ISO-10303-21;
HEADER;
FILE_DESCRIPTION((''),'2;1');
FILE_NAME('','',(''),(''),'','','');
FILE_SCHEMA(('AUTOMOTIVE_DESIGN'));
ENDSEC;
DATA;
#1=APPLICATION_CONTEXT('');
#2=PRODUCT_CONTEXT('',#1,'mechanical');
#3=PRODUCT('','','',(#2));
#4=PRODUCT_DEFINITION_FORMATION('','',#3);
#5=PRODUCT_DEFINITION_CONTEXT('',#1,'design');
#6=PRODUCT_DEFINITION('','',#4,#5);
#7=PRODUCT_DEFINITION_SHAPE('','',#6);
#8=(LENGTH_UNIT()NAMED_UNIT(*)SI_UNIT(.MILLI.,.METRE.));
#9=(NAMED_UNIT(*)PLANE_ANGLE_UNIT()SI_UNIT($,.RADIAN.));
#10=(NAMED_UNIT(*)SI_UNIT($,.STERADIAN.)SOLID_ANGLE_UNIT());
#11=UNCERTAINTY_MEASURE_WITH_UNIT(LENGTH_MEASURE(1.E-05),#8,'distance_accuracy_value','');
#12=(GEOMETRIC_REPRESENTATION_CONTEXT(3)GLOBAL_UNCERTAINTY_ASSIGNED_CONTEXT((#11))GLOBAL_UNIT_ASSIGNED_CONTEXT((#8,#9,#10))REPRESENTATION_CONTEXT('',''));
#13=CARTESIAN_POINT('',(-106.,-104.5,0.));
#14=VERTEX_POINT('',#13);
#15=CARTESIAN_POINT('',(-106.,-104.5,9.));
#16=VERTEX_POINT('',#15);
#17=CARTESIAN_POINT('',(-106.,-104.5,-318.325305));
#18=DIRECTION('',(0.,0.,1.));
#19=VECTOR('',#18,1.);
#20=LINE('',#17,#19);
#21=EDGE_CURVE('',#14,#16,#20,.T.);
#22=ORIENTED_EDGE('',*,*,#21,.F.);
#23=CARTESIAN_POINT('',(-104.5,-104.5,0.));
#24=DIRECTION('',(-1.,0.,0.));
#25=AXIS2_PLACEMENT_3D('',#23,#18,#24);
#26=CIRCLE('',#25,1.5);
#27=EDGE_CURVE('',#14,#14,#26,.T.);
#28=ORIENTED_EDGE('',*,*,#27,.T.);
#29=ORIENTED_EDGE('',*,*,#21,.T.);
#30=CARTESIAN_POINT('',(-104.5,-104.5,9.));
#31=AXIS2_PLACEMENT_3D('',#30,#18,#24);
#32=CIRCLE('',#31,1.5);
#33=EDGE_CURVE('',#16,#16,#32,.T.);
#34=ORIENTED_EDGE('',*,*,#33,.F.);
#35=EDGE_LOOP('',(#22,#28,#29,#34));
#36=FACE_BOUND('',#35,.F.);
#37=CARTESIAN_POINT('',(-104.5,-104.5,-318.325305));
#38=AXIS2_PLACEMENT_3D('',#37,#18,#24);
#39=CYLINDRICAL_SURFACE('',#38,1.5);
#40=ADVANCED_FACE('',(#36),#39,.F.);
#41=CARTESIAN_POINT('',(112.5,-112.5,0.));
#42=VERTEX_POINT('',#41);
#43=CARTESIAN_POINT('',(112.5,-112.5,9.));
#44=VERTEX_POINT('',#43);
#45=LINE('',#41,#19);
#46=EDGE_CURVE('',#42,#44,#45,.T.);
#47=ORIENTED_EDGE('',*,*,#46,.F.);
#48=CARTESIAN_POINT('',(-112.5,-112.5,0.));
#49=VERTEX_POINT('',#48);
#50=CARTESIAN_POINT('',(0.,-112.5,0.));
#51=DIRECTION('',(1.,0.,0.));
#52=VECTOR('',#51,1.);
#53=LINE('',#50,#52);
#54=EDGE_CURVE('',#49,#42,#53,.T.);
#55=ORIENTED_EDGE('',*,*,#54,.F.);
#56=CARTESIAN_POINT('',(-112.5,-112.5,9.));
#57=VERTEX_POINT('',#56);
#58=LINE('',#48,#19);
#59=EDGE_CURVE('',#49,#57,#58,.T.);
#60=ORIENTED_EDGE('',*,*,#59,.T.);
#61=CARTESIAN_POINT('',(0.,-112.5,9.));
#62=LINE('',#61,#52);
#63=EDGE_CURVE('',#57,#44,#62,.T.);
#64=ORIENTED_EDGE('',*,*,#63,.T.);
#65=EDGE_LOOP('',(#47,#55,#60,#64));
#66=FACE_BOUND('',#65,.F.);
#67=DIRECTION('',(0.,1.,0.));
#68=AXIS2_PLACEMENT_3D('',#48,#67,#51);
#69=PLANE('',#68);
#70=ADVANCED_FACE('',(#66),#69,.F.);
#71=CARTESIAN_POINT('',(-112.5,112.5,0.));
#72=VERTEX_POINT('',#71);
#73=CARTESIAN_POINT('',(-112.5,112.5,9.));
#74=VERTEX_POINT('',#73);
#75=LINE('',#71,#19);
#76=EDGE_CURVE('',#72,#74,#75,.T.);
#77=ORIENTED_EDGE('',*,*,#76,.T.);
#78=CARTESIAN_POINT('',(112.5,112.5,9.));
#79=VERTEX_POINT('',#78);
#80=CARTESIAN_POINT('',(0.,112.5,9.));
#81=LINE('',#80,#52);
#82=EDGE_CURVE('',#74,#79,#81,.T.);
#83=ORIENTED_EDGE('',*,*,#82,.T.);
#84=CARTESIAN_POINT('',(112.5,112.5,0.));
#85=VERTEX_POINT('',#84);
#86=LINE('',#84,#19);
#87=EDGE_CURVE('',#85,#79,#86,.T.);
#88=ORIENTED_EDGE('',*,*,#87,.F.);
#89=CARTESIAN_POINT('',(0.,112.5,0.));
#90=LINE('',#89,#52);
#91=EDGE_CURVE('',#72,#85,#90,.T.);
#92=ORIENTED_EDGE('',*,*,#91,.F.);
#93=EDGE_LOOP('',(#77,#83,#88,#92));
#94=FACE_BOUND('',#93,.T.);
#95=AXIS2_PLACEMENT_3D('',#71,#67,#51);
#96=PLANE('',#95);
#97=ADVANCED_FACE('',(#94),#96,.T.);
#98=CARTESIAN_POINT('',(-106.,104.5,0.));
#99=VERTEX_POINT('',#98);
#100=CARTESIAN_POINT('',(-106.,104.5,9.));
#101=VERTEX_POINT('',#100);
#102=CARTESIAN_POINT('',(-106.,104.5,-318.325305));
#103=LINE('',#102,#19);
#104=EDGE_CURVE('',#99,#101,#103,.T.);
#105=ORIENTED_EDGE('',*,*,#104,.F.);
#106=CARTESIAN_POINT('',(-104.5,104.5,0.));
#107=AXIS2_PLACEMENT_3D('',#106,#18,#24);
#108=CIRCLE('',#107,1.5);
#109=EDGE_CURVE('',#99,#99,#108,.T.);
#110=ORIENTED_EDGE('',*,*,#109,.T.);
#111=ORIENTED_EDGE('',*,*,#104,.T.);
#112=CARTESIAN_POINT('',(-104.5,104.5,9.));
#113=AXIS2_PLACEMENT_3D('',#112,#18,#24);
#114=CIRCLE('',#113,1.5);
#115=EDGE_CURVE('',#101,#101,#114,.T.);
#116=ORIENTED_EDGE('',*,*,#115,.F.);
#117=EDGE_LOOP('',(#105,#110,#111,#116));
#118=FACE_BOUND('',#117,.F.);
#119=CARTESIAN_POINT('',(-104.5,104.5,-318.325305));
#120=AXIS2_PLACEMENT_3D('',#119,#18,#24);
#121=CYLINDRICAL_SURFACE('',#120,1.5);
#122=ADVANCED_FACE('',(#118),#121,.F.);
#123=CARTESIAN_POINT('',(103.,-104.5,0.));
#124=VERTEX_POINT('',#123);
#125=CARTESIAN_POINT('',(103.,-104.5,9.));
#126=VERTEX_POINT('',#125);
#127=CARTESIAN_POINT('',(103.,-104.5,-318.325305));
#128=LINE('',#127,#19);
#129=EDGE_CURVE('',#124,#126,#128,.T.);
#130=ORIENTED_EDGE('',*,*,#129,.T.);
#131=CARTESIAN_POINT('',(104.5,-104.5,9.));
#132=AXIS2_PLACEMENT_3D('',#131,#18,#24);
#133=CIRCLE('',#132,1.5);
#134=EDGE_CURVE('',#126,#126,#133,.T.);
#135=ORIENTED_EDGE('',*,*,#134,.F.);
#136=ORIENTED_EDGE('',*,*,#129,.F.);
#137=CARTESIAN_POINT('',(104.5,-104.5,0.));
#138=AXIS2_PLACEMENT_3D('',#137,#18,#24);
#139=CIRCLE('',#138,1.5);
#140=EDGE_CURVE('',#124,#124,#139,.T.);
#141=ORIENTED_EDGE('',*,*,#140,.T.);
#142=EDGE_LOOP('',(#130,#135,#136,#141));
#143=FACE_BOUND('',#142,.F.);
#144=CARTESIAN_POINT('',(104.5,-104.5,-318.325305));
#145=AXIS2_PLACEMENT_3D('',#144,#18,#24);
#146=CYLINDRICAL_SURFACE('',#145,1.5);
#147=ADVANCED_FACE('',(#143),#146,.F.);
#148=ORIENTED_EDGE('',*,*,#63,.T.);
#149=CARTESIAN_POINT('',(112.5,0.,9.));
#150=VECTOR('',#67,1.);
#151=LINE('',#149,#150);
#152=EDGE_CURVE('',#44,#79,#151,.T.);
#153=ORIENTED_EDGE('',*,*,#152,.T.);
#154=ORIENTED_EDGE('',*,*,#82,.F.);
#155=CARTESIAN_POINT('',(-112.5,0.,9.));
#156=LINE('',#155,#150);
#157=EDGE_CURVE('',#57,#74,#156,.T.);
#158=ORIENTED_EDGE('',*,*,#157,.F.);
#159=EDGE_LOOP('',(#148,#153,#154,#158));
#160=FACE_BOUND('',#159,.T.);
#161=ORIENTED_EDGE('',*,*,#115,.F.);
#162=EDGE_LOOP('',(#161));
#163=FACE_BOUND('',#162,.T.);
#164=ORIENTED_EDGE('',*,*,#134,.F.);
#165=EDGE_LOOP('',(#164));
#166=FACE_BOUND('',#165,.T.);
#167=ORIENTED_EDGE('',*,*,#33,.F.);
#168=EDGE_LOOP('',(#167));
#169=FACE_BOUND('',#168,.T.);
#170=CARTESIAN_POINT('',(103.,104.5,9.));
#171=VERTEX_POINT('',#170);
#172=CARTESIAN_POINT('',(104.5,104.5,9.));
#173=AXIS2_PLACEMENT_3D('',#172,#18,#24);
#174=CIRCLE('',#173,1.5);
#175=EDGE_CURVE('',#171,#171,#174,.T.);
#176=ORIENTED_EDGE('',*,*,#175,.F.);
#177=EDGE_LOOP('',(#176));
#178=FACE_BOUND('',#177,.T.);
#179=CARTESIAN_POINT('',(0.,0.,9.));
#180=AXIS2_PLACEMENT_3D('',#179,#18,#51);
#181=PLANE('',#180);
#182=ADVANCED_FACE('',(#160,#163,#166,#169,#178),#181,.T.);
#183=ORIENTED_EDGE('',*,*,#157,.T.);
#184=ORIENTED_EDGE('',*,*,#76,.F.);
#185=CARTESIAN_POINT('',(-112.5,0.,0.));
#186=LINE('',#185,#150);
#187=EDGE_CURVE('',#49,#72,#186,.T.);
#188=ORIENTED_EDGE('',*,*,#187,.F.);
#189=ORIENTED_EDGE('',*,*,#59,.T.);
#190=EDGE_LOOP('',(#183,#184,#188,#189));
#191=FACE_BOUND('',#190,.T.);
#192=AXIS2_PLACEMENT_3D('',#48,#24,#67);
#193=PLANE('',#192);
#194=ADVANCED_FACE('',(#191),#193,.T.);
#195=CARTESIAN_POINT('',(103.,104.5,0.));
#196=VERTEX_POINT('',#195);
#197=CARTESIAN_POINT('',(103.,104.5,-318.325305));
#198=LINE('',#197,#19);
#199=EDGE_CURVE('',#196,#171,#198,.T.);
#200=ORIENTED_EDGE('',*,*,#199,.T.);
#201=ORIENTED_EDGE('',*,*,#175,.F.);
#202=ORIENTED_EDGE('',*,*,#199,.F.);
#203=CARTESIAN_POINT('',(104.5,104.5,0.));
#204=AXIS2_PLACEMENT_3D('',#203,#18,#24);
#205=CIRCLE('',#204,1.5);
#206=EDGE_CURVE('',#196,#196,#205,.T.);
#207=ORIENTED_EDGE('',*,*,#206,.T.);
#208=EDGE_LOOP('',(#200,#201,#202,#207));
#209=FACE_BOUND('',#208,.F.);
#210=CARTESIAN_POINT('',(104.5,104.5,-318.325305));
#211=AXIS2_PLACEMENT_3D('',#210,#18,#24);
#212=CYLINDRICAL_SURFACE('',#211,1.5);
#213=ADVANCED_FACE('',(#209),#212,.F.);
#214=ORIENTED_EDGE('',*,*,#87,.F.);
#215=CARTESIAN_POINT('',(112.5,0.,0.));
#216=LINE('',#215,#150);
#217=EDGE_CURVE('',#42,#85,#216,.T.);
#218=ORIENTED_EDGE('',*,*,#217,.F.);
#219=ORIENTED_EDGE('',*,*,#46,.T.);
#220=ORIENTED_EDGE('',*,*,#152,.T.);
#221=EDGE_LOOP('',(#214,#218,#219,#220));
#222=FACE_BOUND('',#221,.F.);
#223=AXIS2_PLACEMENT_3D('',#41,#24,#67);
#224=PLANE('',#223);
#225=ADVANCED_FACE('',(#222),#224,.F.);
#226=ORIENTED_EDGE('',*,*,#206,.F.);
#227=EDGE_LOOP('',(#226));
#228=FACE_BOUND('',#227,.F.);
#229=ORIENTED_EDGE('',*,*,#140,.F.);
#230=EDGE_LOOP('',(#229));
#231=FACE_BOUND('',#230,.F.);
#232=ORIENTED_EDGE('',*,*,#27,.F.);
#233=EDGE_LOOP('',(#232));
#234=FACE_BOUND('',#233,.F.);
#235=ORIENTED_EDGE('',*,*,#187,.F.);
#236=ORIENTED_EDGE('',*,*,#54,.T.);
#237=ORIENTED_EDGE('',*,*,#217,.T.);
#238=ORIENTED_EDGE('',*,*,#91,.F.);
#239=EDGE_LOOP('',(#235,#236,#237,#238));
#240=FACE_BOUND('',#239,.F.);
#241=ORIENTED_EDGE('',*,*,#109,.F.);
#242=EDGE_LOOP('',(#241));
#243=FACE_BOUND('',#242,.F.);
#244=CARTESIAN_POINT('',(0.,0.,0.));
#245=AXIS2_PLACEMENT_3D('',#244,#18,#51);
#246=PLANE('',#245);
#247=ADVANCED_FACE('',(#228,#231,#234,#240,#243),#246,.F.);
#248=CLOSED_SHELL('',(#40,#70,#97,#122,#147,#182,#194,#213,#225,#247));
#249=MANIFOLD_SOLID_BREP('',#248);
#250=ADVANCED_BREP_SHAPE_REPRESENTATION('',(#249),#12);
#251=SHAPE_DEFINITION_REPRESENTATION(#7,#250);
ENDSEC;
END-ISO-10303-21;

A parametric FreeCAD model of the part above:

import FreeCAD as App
import Part
import Sketcher

V = App.Vector


def add_polygon(sketch, points):
    """Adds a closed chain of lines whose ends are joined by coincident constraints."""
    first, n = sketch.GeometryCount, len(points)
    for a, b in zip(points, points[1:] + points[:1]):
        sketch.addGeometry(Part.LineSegment(App.Vector(*a, 0), App.Vector(*b, 0)), False)
    for i in range(n):
        sketch.addConstraint(Sketcher.Constraint("Coincident", first + i, 2, first + (i + 1) % n, 1))

doc = App.newDocument("Part")
body = doc.addObject("PartDesign::Body", "Body")

# Sketch on XY plane
sketch1 = body.newObject("Sketcher::SketchObject", "Sketch")
sketch1.AttachmentSupport = (doc.getObject("XY_Plane"), [""])
sketch1.MapMode = "FlatFace"
add_polygon(sketch1, [(-112, 112), (-112, -112), (112, -112), (112, 112)])  # lines 0-3
sketch1.addConstraint([
    Sketcher.Constraint("Vertical", 0),
    Sketcher.Constraint("Horizontal", 1),
    Sketcher.Constraint("Vertical", 2),
    Sketcher.Constraint("Horizontal", 3),
    Sketcher.Constraint("Symmetric", 0, 2, 2, 2, -1, 1),
    Sketcher.Constraint("Equal", 3, 0),
    Sketcher.Constraint("DistanceX", 1, 1, 1, 2, 225.0),
])
pad1 = body.newObject("PartDesign::Pad", "Pad")
pad1.Profile = sketch1
pad1.Length = 9

# Sketch on XY plane
sketch2 = body.newObject("Sketcher::SketchObject", "Sketch001")
sketch2.AttachmentSupport = (doc.getObject("XY_Plane"), [""])
sketch2.MapMode = "FlatFace"
sketch2.addGeometry([
    Part.Circle(V(-104.5, -104.5, 0), V(0, 0, 1), 1.5),
    Part.Circle(V(104.5, -104.5, 0), V(0, 0, 1), 1.5),
    Part.Circle(V(-104.5, 104.5, 0), V(0, 0, 1), 1.5),
    Part.Circle(V(104.5, 104.5, 0), V(0, 0, 1), 1.5),
], False)
sketch2.addConstraint([
    Sketcher.Constraint("Equal", 0, 1),
    Sketcher.Constraint("Equal", 1, 2),
    Sketcher.Constraint("Equal", 2, 3),
    Sketcher.Constraint("Symmetric", 1, 3, 2, 3, -1, 1),
    Sketcher.Constraint("Symmetric", 0, 3, 3, 3, -1, 1),
    Sketcher.Constraint("Symmetric", 0, 3, 1, 3, -2),
    Sketcher.Constraint("Diameter", 0, 3.0),
    Sketcher.Constraint("DistanceX", 0, 3, 1, 3, 209.0),
    Sketcher.Constraint("DistanceY", 0, 3, 2, 3, 209.0),
])
doc.recompute()
hole = body.newObject("PartDesign::Hole", "Hole")
hole.Profile = sketch2
hole.ThreadType = "None"
hole.Diameter = 3
hole.DepthType = "ThroughAll"
hole.Reversed = True

doc.recompute()
